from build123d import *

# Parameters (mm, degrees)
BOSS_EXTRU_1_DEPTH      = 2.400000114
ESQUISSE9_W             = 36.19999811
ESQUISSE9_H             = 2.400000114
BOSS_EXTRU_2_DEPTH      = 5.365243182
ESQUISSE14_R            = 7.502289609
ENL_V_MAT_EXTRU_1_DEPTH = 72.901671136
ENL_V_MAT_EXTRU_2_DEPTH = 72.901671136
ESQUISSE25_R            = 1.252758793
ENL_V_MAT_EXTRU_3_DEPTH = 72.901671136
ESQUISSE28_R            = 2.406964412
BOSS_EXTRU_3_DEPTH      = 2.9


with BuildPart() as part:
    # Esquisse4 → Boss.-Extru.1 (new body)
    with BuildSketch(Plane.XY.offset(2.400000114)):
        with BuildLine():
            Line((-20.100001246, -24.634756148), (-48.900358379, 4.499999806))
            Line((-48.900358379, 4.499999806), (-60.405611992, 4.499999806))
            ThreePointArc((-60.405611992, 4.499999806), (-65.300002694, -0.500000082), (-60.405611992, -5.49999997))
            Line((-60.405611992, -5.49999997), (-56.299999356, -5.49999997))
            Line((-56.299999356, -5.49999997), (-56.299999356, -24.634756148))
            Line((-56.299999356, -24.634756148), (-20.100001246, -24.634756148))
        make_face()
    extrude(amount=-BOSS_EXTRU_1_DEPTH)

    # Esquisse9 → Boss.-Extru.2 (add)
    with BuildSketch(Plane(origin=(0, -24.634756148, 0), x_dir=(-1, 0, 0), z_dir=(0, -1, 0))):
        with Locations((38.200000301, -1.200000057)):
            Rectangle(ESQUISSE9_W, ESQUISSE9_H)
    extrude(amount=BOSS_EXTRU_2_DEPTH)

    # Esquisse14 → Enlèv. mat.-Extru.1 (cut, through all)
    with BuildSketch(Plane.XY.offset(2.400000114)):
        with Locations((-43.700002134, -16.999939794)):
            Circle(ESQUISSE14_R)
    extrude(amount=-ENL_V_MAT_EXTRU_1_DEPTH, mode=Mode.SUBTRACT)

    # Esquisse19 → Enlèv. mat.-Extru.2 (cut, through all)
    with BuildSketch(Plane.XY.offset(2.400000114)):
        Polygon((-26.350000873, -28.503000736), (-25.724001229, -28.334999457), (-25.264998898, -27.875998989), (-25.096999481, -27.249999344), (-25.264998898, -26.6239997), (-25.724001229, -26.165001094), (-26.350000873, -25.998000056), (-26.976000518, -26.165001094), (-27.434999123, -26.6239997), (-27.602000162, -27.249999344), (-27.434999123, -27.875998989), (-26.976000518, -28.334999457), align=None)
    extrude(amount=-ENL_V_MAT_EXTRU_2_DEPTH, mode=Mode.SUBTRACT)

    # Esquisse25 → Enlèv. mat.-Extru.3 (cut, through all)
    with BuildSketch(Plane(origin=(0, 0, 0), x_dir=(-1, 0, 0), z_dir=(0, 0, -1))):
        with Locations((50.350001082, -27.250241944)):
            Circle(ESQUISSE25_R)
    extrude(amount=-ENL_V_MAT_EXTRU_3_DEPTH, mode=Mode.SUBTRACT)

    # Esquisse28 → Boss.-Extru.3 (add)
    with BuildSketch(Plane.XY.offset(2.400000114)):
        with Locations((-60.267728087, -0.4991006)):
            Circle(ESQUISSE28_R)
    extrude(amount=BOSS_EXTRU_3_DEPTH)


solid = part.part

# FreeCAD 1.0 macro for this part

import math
import FreeCAD as App
import Part
import Sketcher

V = App.Vector
Q = App.Units.Quantity

doc = App.newDocument("Part")
params = doc.addObject("Spreadsheet::Sheet", "Params")
for row, (alias, value) in enumerate([
    ("sketch1_width", "36.199998 mm"),
    ("pad1_length", "2.4 mm"),
    ("sketch2_width", "36.199998 mm"),
    ("sketch2_height", "2.4 mm"),
    ("pad2_length", "5.365243 mm"),
    ("pad3_length", "2.9 mm"),
], start=1):
    params.set(f"A{row}", alias)
    params.set(f"B{row}", "=" + value)
    params.setAlias(f"B{row}", alias)

body = doc.addObject("PartDesign::Body", "Body")

# Sketch on XY plane
sketch1 = doc.addObject("Sketcher::SketchObject", "Sketch")
body.addObject(sketch1)
sketch1.AttachmentSupport = (doc.XY_Plane, [""])
sketch1.MapMode = "FlatFace"
sketch1.AttachmentOffset = App.Placement(V(0, 0, 2.4), App.Rotation())
sketch1.addGeometry([
    Part.LineSegment(V(-20.100001, -24.634756, 0), V(-48.900358, 4.5, 0)),  # 0
    Part.LineSegment(V(-48.900358, 4.5, 0), V(-60.405612, 4.5, 0)),  # 1
    Part.ArcOfCircle(Part.Circle(V(-60.298863, -0.5, 0), V(0, 0, 1), 5.001139), math.radians(91.223063), math.radians(268.776937)),  # 2
    Part.LineSegment(V(-60.405612, -5.5, 0), V(-56.299999, -5.5, 0)),  # 3
    Part.LineSegment(V(-56.299999, -5.5, 0), V(-56.299999, -24.634756, 0)),  # 4
    Part.LineSegment(V(-56.299999, -24.634756, 0), V(-20.100001, -24.634756, 0)),  # 5
], False)
sketch1.addConstraint([
    Sketcher.Constraint("Coincident", 0, 2, 1, 1),
    Sketcher.Constraint("Coincident", 1, 2, 2, 1),
    Sketcher.Constraint("Coincident", 2, 2, 3, 1),
    Sketcher.Constraint("Coincident", 3, 2, 4, 1),
    Sketcher.Constraint("Coincident", 4, 2, 5, 1),
    Sketcher.Constraint("Coincident", 5, 2, 0, 1),
    Sketcher.Constraint("Horizontal", 1),
    Sketcher.Constraint("Horizontal", 3),
    Sketcher.Constraint("Vertical", 4),
    Sketcher.Constraint("Horizontal", 5),
    Sketcher.Constraint("Vertical", 1, 2, 2, 2),
    Sketcher.Constraint("DistanceX", 5, 1, 5, 2, Q("36.199998 mm")),
    Sketcher.Constraint("DistanceY", 2, 3, 0, 2, Q("5 mm")),
    Sketcher.Constraint("DistanceY", 2, 3, -1, 1, Q("0.5 mm")),
    Sketcher.Constraint("DistanceX", 3, 2, -1, 1, Q("56.299999 mm")),
    Sketcher.Constraint("Radius", 2, Q("5.001139 mm")),
    Sketcher.Constraint("DistanceX", 1, 2, 1, 1, Q("11.505254 mm")),
    Sketcher.Constraint("DistanceX", 3, 1, 3, 2, Q("4.105613 mm")),
    Sketcher.Constraint("DistanceY", 4, 2, 4, 1, Q("19.134756 mm")),
])
sketch1.setExpression("Constraints[11]", "Params.sketch1_width")
pad1 = doc.addObject("PartDesign::Pad", "Pad")
body.addObject(pad1)
pad1.Profile = sketch1
pad1.setExpression("Length", "Params.pad1_length")
pad1.Reversed = True

# Sketch on XZ plane
sketch2 = doc.addObject("Sketcher::SketchObject", "Sketch001")
body.addObject(sketch2)
sketch2.AttachmentSupport = (doc.XZ_Plane, [""])
sketch2.MapMode = "FlatFace"
sketch2.AttachmentOffset = App.Placement(V(0, 0, 24.634756), App.Rotation())
sketch2.addGeometry([
    Part.LineSegment(V(-20.100001, 0, 0), V(-20.100001, 2.4, 0)),
    Part.LineSegment(V(-20.100001, 2.4, 0), V(-56.299999, 2.4, 0)),
    Part.LineSegment(V(-56.299999, 2.4, 0), V(-56.299999, 0, 0)),
    Part.LineSegment(V(-56.299999, 0, 0), V(-20.100001, 0, 0)),
], False)
sketch2.addConstraint([
    Sketcher.Constraint("Coincident", 0, 2, 1, 1),
    Sketcher.Constraint("Coincident", 1, 2, 2, 1),
    Sketcher.Constraint("Coincident", 2, 2, 3, 1),
    Sketcher.Constraint("Coincident", 3, 2, 0, 1),
    Sketcher.Constraint("Vertical", 0),
    Sketcher.Constraint("Horizontal", 1),
    Sketcher.Constraint("Vertical", 2),
    Sketcher.Constraint("Horizontal", 3),
    Sketcher.Constraint("PointOnObject", 2, 2, -1),
    Sketcher.Constraint("DistanceX", 1, 2, 1, 1, Q("36.199998 mm")),
    Sketcher.Constraint("DistanceY", 0, 1, 0, 2, Q("2.4 mm")),
    Sketcher.Constraint("DistanceX", 0, 2, -1, 1, Q("20.100001 mm")),
])
sketch2.setExpression("Constraints[9]", "Params.sketch2_width")
sketch2.setExpression("Constraints[10]", "Params.sketch2_height")
pad2 = doc.addObject("PartDesign::Pad", "Pad001")
body.addObject(pad2)
pad2.Profile = sketch2
pad2.setExpression("Length", "Params.pad2_length")

# Sketch on XY plane
sketch3 = doc.addObject("Sketcher::SketchObject", "Sketch002")
body.addObject(sketch3)
sketch3.AttachmentSupport = (doc.XY_Plane, [""])
sketch3.MapMode = "FlatFace"
sketch3.AttachmentOffset = App.Placement(V(0, 0, 2.4), App.Rotation())
sketch3.addGeometry(Part.Circle(V(-43.700002, -16.99994, 0), V(0, 0, 1), 7.50229), False)
sketch3.addConstraint([
    Sketcher.Constraint("Diameter", 0, Q("15.004579 mm")),
    Sketcher.Constraint("DistanceY", 0, 3, -1, 1, Q("16.99994 mm")),
    Sketcher.Constraint("DistanceX", 0, 3, -1, 1, Q("43.700002 mm")),
])
pocket1 = doc.addObject("PartDesign::Pocket", "Pocket")
body.addObject(pocket1)
pocket1.Profile = sketch3
pocket1.Type = "ThroughAll"

# Sketch on XY plane
sketch4 = doc.addObject("Sketcher::SketchObject", "Sketch003")
body.addObject(sketch4)
sketch4.AttachmentSupport = (doc.XY_Plane, [""])
sketch4.MapMode = "FlatFace"
sketch4.AttachmentOffset = App.Placement(V(0, 0, 2.4), App.Rotation())
sketch4.addGeometry([
    Part.LineSegment(V(-26.350001, -28.503001, 0), V(-25.724001, -28.334999, 0)),  # 0
    Part.LineSegment(V(-25.724001, -28.334999, 0), V(-25.264999, -27.875999, 0)),  # 1
    Part.LineSegment(V(-25.264999, -27.875999, 0), V(-25.096999, -27.249999, 0)),  # 2
    Part.LineSegment(V(-25.096999, -27.249999, 0), V(-25.264999, -26.624, 0)),  # 3
    Part.LineSegment(V(-25.264999, -26.624, 0), V(-25.724001, -26.165001, 0)),  # 4
    Part.LineSegment(V(-25.724001, -26.165001, 0), V(-26.350001, -25.998, 0)),  # 5
    Part.LineSegment(V(-26.350001, -25.998, 0), V(-26.976001, -26.165001, 0)),  # 6
    Part.LineSegment(V(-26.976001, -26.165001, 0), V(-27.434999, -26.624, 0)),  # 7
    Part.LineSegment(V(-27.434999, -26.624, 0), V(-27.602, -27.249999, 0)),  # 8
    Part.LineSegment(V(-27.602, -27.249999, 0), V(-27.434999, -27.875999, 0)),  # 9
    Part.LineSegment(V(-27.434999, -27.875999, 0), V(-26.976001, -28.334999, 0)),  # 10
    Part.LineSegment(V(-26.976001, -28.334999, 0), V(-26.350001, -28.503001, 0)),  # 11
], False)
sketch4.addConstraint([
    Sketcher.Constraint("Coincident", 0, 2, 1, 1),
    Sketcher.Constraint("Coincident", 1, 2, 2, 1),
    Sketcher.Constraint("Coincident", 2, 2, 3, 1),
    Sketcher.Constraint("Coincident", 3, 2, 4, 1),
    Sketcher.Constraint("Coincident", 4, 2, 5, 1),
    Sketcher.Constraint("Coincident", 5, 2, 6, 1),
    Sketcher.Constraint("Coincident", 6, 2, 7, 1),
    Sketcher.Constraint("Coincident", 7, 2, 8, 1),
    Sketcher.Constraint("Coincident", 8, 2, 9, 1),
    Sketcher.Constraint("Coincident", 9, 2, 10, 1),
    Sketcher.Constraint("Coincident", 10, 2, 11, 1),
    Sketcher.Constraint("Coincident", 11, 2, 0, 1),
    Sketcher.Constraint("Perpendicular", 5, 8),
    Sketcher.Constraint("Perpendicular", 6, 9),
    Sketcher.Constraint("Perpendicular", 1, 10),
    Sketcher.Constraint("Horizontal", 4, 2, 6, 2),
    Sketcher.Constraint("Horizontal", 3, 2, 7, 2),
    Sketcher.Constraint("Horizontal", 2, 2, 8, 2),
    Sketcher.Constraint("Horizontal", 1, 2, 9, 2),
    Sketcher.Constraint("Horizontal", 0, 2, 10, 2),
    Sketcher.Constraint("Vertical", 1, 2, 3, 2),
    Sketcher.Constraint("Vertical", 0, 2, 4, 2),
    Sketcher.Constraint("Vertical", 7, 2, 9, 2),
    Sketcher.Constraint("Vertical", 6, 2, 10, 2),
    Sketcher.Constraint("Vertical", 5, 2, 11, 2),
    Sketcher.Constraint("Equal", 0, 2),
    Sketcher.Constraint("Equal", 2, 3),
    Sketcher.Constraint("Equal", 1, 4),
    Sketcher.Constraint("Equal", 6, 8),
    Sketcher.Constraint("Equal", 4, 10),
    Sketcher.Constraint("DistanceY", 2, 2, -1, 1, Q("27.249999 mm")),
    Sketcher.Constraint("DistanceX", 5, 2, -1, 1, Q("26.350001 mm")),
    Sketcher.Constraint("DistanceY", 0, 2, 4, 2, Q("2.169998 mm")),
    Sketcher.Constraint("DistanceX", 0, 2, -1, 1, Q("25.724001 mm")),
    Sketcher.Constraint("DistanceX", 2, 2, -1, 1, Q("25.096999 mm")),
    Sketcher.Constraint("DistanceY", 5, 2, -1, 1, Q("25.998 mm")),
])
pocket2 = doc.addObject("PartDesign::Pocket", "Pocket001")
body.addObject(pocket2)
pocket2.Profile = sketch4
pocket2.Type = "ThroughAll"

# Sketch on XY plane
sketch5 = doc.addObject("Sketcher::SketchObject", "Sketch004")
body.addObject(sketch5)
sketch5.AttachmentSupport = (doc.XY_Plane, [""])
sketch5.MapMode = "FlatFace"
sketch5.addGeometry(Part.Circle(V(-50.350001, -27.250242, 0), V(0, 0, 1), 1.252759), False)
sketch5.addConstraint([
    Sketcher.Constraint("DistanceX", 0, 3, -1, 1, Q("50.350001 mm")),
    Sketcher.Constraint("Diameter", 0, Q("2.505518 mm")),
    Sketcher.Constraint("DistanceY", 0, 3, -1, 1, Q("27.250242 mm")),
])
pocket3 = doc.addObject("PartDesign::Pocket", "Pocket002")
body.addObject(pocket3)
pocket3.Profile = sketch5
pocket3.Type = "ThroughAll"
pocket3.Reversed = True

# Sketch on XY plane
sketch6 = doc.addObject("Sketcher::SketchObject", "Sketch005")
body.addObject(sketch6)
sketch6.AttachmentSupport = (doc.XY_Plane, [""])
sketch6.MapMode = "FlatFace"
sketch6.AttachmentOffset = App.Placement(V(0, 0, 2.4), App.Rotation())
sketch6.addGeometry(Part.Circle(V(-60.267728, -0.499101, 0), V(0, 0, 1), 2.406964), False)
sketch6.addConstraint([
    Sketcher.Constraint("Diameter", 0, Q("4.813929 mm")),
    Sketcher.Constraint("DistanceY", 0, 3, -1, 1, Q("0.499101 mm")),
    Sketcher.Constraint("DistanceX", 0, 3, -1, 1, Q("60.267728 mm")),
])
pad3 = doc.addObject("PartDesign::Pad", "Pad002")
body.addObject(pad3)
pad3.Profile = sketch6
pad3.setExpression("Length", "Params.pad3_length")

doc.recompute()
